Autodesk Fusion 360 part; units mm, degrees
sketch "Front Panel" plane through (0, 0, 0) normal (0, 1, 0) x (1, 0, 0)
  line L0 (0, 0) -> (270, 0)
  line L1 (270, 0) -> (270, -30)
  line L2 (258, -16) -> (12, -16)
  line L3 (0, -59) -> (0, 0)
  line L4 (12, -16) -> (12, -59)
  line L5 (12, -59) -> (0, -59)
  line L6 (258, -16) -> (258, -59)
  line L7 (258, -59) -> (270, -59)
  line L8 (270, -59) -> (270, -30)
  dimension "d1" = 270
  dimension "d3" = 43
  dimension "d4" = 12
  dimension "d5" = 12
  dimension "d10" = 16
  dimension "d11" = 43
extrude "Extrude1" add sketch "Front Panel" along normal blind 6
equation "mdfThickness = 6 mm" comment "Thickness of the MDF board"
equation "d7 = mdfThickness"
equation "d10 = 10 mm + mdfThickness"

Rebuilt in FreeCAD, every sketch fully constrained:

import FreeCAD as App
import Part
import Sketcher

V = App.Vector


def add_polygon(sketch, points):
    """Adds a closed chain of lines whose ends are joined by coincident constraints."""
    first, n = sketch.GeometryCount, len(points)
    for a, b in zip(points, points[1:] + points[:1]):
        sketch.addGeometry(Part.LineSegment(App.Vector(*a, 0), App.Vector(*b, 0)), False)
    for i in range(n):
        sketch.addConstraint(Sketcher.Constraint("Coincident", first + i, 2, first + (i + 1) % n, 1))

doc = App.newDocument("Part")
body = doc.addObject("PartDesign::Body", "Body")

# Sketch on XZ plane
sketch1 = body.newObject("Sketcher::SketchObject", "Sketch")
sketch1.AttachmentSupport = (doc.getObject("XZ_Plane"), [""])
sketch1.MapMode = "FlatFace"
add_polygon(sketch1, [(270, 0), (0, 0), (0, 59), (12, 59), (12, 16), (258, 16), (258, 59), (270, 59)])  # lines 0-7
sketch1.addConstraint([
    Sketcher.Constraint("Horizontal", 0),
    Sketcher.Constraint("Vertical", 1),
    Sketcher.Constraint("Horizontal", 2),
    Sketcher.Constraint("Vertical", 3),
    Sketcher.Constraint("Horizontal", 4),
    Sketcher.Constraint("Vertical", 5),
    Sketcher.Constraint("Horizontal", 6),
    Sketcher.Constraint("Vertical", 7),
    Sketcher.Constraint("Coincident", 0, 2, -1, 1),
    Sketcher.Constraint("Horizontal", 2, 2, 5, 2),
    Sketcher.Constraint("Equal", 2, 6),
    Sketcher.Constraint("DistanceX", 0, 2, 0, 1, 270.0),
    Sketcher.Constraint("DistanceX", 2, 1, 2, 2, 12.0),
    Sketcher.Constraint("DistanceY", 3, 2, 3, 1, 43.0),
    Sketcher.Constraint("DistanceY", -1, 1, 3, 2, 16.0),
])
pad1 = body.newObject("PartDesign::Pad", "Pad")
pad1.Profile = sketch1
pad1.Length = 6
pad1.Reversed = True

doc.recompute()
